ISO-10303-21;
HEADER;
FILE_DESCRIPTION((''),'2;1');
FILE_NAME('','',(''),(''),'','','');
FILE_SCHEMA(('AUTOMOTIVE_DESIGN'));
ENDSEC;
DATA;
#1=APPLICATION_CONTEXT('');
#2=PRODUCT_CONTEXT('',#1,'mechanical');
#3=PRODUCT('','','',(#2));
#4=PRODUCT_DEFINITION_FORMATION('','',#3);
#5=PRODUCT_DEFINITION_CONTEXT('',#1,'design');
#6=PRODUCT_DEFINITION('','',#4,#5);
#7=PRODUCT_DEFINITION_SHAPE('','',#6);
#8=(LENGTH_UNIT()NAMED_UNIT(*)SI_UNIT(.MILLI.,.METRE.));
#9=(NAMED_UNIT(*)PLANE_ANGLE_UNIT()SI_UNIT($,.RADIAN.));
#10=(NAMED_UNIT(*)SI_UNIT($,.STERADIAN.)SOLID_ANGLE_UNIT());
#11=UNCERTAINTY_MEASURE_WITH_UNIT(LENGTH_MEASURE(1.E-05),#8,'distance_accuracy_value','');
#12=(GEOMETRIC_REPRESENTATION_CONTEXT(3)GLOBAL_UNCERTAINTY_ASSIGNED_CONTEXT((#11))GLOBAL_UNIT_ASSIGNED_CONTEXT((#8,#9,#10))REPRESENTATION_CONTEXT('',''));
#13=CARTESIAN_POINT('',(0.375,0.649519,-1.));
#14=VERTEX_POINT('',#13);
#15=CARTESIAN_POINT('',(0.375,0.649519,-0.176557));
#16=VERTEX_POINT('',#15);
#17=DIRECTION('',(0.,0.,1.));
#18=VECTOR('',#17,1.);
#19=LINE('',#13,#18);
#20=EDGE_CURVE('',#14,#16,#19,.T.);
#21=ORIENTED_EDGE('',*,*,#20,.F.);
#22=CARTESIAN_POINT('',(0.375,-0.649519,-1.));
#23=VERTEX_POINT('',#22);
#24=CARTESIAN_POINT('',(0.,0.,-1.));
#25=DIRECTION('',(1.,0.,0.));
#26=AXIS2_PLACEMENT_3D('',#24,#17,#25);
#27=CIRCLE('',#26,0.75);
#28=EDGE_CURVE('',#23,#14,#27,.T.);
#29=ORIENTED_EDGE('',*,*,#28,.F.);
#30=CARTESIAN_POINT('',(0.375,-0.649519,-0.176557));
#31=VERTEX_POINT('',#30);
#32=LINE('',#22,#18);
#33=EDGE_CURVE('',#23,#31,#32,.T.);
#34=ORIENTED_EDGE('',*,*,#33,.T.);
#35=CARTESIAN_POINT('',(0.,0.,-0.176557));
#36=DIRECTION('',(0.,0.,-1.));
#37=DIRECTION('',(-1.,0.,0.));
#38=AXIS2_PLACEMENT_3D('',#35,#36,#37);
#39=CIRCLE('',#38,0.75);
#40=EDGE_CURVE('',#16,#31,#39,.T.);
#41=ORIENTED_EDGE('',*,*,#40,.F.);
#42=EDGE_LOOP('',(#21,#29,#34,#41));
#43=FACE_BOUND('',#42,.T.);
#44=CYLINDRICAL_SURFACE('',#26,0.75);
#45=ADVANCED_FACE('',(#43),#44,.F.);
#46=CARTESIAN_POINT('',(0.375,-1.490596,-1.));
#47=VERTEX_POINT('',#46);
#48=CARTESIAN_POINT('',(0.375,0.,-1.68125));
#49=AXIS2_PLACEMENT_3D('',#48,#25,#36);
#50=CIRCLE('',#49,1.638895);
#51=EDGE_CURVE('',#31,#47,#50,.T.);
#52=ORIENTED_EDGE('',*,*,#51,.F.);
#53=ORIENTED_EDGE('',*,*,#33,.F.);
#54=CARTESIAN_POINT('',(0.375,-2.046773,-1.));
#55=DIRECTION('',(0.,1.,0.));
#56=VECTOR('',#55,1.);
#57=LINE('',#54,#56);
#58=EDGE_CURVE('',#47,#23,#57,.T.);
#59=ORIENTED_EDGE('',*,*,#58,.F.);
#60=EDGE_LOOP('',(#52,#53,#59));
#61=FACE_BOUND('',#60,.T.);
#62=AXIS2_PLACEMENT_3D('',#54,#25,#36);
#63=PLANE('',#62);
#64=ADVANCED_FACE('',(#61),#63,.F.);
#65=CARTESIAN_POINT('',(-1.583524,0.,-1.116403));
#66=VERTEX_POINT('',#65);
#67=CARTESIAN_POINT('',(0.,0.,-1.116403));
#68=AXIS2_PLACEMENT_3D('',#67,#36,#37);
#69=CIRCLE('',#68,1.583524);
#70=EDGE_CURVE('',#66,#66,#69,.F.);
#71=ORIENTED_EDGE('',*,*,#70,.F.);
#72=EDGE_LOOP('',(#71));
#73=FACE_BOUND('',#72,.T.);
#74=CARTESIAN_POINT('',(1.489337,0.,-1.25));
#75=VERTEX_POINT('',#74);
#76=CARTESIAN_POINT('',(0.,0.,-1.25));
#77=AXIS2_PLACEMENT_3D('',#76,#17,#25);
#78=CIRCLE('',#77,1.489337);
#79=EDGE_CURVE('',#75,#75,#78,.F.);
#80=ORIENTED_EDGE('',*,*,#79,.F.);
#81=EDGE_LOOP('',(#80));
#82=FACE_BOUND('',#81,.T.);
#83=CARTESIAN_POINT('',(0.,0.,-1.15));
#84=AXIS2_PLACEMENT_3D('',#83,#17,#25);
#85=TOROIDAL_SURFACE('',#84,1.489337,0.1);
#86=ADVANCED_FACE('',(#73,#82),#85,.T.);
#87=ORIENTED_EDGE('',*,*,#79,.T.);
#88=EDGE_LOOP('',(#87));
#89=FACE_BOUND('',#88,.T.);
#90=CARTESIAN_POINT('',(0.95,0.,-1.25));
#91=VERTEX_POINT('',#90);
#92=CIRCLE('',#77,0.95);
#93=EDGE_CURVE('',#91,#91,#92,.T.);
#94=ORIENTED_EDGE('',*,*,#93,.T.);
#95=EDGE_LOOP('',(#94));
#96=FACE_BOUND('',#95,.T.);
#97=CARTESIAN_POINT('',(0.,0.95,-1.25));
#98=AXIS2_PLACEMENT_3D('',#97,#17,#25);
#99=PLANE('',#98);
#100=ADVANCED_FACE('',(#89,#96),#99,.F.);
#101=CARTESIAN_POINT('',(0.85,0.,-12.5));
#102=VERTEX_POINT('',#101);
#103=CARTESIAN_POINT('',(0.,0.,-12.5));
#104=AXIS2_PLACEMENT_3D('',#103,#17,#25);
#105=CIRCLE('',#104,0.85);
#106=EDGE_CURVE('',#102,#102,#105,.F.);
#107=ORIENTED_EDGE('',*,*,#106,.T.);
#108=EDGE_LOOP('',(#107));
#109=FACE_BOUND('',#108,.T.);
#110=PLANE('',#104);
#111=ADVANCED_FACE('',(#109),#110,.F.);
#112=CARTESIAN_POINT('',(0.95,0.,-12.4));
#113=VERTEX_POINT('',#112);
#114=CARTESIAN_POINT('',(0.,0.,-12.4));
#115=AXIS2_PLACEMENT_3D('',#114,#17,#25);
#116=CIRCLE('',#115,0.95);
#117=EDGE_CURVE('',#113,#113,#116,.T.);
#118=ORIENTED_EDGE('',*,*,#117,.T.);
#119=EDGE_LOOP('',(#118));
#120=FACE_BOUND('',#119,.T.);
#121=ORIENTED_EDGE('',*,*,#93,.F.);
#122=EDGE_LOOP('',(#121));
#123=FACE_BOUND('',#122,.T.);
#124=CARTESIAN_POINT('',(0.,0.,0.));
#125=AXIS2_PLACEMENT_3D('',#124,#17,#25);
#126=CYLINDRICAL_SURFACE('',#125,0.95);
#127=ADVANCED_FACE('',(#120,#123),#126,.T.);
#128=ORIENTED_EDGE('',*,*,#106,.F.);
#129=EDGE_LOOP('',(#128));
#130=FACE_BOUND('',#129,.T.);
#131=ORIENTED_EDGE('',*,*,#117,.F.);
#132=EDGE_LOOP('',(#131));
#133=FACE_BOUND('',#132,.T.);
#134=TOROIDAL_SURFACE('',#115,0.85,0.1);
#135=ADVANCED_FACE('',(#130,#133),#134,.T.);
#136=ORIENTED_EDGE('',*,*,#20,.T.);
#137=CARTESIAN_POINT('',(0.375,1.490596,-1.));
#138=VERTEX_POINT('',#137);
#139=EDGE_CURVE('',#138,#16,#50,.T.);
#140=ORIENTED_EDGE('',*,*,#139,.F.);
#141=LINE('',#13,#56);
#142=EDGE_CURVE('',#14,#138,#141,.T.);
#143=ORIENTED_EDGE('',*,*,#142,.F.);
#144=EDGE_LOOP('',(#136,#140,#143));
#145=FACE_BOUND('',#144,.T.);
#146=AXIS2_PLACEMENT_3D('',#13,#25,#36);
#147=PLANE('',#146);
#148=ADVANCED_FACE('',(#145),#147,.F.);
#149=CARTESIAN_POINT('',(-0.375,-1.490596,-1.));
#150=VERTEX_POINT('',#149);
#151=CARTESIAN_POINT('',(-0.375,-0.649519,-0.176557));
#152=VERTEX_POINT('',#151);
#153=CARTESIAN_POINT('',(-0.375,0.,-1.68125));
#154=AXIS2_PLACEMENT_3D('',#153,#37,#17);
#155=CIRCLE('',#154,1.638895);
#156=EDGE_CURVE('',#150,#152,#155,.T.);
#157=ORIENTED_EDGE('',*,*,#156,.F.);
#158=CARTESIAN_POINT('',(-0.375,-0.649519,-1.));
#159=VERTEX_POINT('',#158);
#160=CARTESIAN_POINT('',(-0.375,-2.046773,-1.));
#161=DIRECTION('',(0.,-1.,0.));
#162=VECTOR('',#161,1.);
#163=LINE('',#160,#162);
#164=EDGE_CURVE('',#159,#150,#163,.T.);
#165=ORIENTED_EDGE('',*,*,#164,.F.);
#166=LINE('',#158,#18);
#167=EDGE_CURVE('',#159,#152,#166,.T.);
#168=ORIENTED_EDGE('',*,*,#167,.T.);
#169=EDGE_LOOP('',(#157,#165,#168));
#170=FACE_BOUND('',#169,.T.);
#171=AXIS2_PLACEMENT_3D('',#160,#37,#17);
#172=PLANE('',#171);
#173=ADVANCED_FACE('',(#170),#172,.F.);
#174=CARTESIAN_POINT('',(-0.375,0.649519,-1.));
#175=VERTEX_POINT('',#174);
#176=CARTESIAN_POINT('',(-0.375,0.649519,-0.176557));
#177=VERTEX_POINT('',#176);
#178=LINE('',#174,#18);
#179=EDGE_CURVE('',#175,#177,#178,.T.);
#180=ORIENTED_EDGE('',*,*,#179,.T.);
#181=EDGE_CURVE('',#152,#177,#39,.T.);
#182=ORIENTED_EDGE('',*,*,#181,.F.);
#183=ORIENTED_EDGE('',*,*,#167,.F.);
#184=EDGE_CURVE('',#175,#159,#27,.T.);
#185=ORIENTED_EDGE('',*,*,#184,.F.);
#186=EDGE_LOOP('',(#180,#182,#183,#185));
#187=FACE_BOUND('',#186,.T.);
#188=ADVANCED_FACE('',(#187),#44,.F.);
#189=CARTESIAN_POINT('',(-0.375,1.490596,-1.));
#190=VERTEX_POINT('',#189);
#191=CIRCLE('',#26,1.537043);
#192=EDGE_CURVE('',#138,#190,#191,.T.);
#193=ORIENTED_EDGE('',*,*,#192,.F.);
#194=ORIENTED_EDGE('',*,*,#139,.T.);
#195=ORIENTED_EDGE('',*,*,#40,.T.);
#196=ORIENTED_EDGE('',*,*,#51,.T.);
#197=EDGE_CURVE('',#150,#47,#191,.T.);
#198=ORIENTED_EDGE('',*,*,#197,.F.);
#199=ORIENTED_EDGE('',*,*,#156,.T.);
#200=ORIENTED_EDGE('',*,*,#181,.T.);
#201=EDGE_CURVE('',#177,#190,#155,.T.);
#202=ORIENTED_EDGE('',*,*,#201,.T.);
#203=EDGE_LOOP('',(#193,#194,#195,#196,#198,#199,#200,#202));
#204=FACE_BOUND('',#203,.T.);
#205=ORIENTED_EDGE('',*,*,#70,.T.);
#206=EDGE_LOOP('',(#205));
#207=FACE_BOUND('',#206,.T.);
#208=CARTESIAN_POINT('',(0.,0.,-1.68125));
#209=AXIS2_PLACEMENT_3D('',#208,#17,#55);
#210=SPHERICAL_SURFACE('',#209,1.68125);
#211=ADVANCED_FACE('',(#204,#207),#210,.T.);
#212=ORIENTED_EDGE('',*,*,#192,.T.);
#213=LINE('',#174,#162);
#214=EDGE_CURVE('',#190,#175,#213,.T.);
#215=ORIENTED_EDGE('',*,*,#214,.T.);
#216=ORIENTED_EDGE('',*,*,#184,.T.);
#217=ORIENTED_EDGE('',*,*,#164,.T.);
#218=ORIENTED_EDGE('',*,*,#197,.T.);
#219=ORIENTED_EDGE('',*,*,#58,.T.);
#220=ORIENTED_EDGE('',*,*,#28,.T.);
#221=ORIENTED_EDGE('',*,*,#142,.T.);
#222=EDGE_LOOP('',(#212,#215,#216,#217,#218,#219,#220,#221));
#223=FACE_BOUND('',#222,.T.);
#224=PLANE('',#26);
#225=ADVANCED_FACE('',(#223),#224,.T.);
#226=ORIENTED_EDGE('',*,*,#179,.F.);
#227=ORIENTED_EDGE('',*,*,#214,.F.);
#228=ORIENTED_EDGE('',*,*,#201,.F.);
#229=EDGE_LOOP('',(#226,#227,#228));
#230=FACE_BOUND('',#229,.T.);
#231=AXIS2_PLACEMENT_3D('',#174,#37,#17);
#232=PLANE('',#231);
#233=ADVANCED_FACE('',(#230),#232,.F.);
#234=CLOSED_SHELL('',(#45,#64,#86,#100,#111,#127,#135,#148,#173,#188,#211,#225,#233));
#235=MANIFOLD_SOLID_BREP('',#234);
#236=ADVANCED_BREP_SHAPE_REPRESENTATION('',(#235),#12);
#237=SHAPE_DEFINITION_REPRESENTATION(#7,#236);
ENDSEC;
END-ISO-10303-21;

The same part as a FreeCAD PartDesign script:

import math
import FreeCAD as App
import Part
import Sketcher
from FreeCAD import Vector
Q = App.Units.Quantity


def edges_at(feature, points):
    """Names of the edges that pass closest to the given points."""
    edges = feature.Shape.Edges
    near = lambda p: min(range(len(edges)), key=lambda i: edges[i].distToShape(Part.Vertex(*p))[0])
    return sorted({f"Edge{near(p) + 1}" for p in points})

doc = App.newDocument("Part")
body = doc.addObject("PartDesign::Body", "Body")

sketch1 = doc.addObject("Sketcher::SketchObject", "Sketch")
body.addObject(sketch1)
sketch1.AttachmentSupport = (doc.YZ_Plane, [""])
sketch1.MapMode = "FlatFace"
sketch1.addGeometry([
    Part.LineSegment(Vector(0, 0, 0), Vector(0, -12.5, 0)),
    Part.LineSegment(Vector(0, -12.5, 0), Vector(0.9, -12.5, 0)),
    Part.LineSegment(Vector(0.9, -12.5, 0), Vector(0.9, -1.2, 0)),
    Part.LineSegment(Vector(0.9, -1.2, 0), Vector(1.6, -1.2, 0)),
    Part.ArcOfCircle(Part.Circle(Vector(0, -1.7, 0), Vector(0, 0, 1), 1.7), math.radians(15), math.radians(90)),
], False)
sketch1.addConstraint([
    Sketcher.Constraint("Coincident", 0, 2, 1, 1),
    Sketcher.Constraint("Coincident", 1, 2, 2, 1),
    Sketcher.Constraint("Coincident", 2, 2, 3, 1),
    Sketcher.Constraint("Coincident", 3, 2, 4, 1),
    Sketcher.Constraint("Coincident", 4, 2, 0, 1),
    Sketcher.Constraint("Vertical", 0),
    Sketcher.Constraint("Horizontal", 1),
    Sketcher.Constraint("Vertical", 2),
    Sketcher.Constraint("Horizontal", 3),
    Sketcher.Constraint("Coincident", 4, 2, -1, 1),
    Sketcher.Constraint("PointOnObject", 4, 3, -2),
    Sketcher.Constraint("DistanceY", 0, 2, 0, 1, Q("12.5 mm")),
    Sketcher.Constraint("DistanceX", 1, 1, 1, 2, Q("0.95 mm")),
    Sketcher.Constraint("DistanceY", 2, 1, 2, 2, Q("11.25 mm")),
    Sketcher.Constraint("DistanceX", 3, 1, 3, 2, Q("0.675 mm")),
])
revolution = doc.addObject("PartDesign::Revolution", "Revolution")
body.addObject(revolution)
revolution.Profile = sketch1
revolution.ReferenceAxis = (sketch1, ["V_Axis"])
revolution.Angle = 360

sketch2 = doc.addObject("Sketcher::SketchObject", "Sketch001")
body.addObject(sketch2)
sketch2.AttachmentSupport = (doc.XY_Plane, [""])
sketch2.MapMode = "FlatFace"
sketch2.addGeometry([
    Part.LineSegment(Vector(0.4, 0.6, 0), Vector(0.4, 2, 0)),
    Part.LineSegment(Vector(0.4, 2, 0), Vector(-0.4, 2, 0)),
    Part.LineSegment(Vector(-0.4, 2, 0), Vector(-0.4, 0.6, 0)),
    Part.ArcOfCircle(Part.Circle(Vector(0, 0, 0), Vector(0, 0, 1), 0.8), math.radians(120), math.radians(240)),
    Part.LineSegment(Vector(-0.4, -0.6, 0), Vector(-0.4, -2, 0)),
    Part.LineSegment(Vector(-0.4, -2, 0), Vector(0.4, -2, 0)),
    Part.LineSegment(Vector(0.4, -2, 0), Vector(0.4, -0.6, 0)),
    Part.ArcOfCircle(Part.Circle(Vector(0, 0, 0), Vector(0, 0, 1), 0.8), math.radians(-60), math.radians(60)),
], False)
sketch2.addConstraint([
    Sketcher.Constraint("Coincident", 0, 2, 1, 1),
    Sketcher.Constraint("Coincident", 1, 2, 2, 1),
    Sketcher.Constraint("Coincident", 2, 2, 3, 1),
    Sketcher.Constraint("Coincident", 3, 2, 4, 1),
    Sketcher.Constraint("Coincident", 4, 2, 5, 1),
    Sketcher.Constraint("Coincident", 5, 2, 6, 1),
    Sketcher.Constraint("Coincident", 6, 2, 7, 1),
    Sketcher.Constraint("Coincident", 7, 2, 0, 1),
    Sketcher.Constraint("Vertical", 0),
    Sketcher.Constraint("Horizontal", 1),
    Sketcher.Constraint("Vertical", 2),
    Sketcher.Constraint("Vertical", 4),
    Sketcher.Constraint("Horizontal", 5),
    Sketcher.Constraint("Vertical", 6),
    Sketcher.Constraint("Coincident", 3, 3, -1, 1),
    Sketcher.Constraint("Coincident", 7, 3, -1, 1),
    Sketcher.Constraint("Equal", 3, 7),
    Sketcher.Constraint("Symmetric", 0, 2, 4, 2, -1, 1),
    Sketcher.Constraint("Horizontal", 3, 2, 6, 2),
    Sketcher.Constraint("Horizontal", 2, 2, 7, 2),
    Sketcher.Constraint("Radius", 3, Q("0.75 mm")),
    Sketcher.Constraint("DistanceX", 1, 2, 1, 1, Q("0.75 mm")),
    Sketcher.Constraint("DistanceY", 0, 1, 0, 2, Q("1.397254 mm")),
])
pocket1 = doc.addObject("PartDesign::Pocket", "Pocket")
body.addObject(pocket1)
pocket1.Profile = sketch2
pocket1.Length = 1
doc.recompute()

fillet = doc.addObject("PartDesign::Fillet", "Fillet")
body.addObject(fillet)
fillet.Base = (pocket1, edges_at(pocket1, [(0, -0.95, -12.5), (0, -1.625, -1.25)]))
fillet.Radius = 0.1

doc.recompute()
